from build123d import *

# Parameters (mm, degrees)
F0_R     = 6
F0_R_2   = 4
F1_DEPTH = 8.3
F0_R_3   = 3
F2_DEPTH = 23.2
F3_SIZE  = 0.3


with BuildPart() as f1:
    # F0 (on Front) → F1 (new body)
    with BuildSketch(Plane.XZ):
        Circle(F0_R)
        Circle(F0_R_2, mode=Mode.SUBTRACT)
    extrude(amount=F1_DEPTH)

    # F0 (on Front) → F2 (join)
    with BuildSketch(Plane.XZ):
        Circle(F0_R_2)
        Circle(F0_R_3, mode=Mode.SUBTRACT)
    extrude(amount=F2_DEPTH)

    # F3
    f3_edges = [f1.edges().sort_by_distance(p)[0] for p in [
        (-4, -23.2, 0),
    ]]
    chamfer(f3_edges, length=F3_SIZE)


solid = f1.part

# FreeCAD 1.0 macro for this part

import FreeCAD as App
import Part
import Sketcher
from FreeCAD import Vector


def edges_at(feature, points):
    """Names of the edges that pass closest to the given points."""
    edges = feature.Shape.Edges
    near = lambda p: min(range(len(edges)), key=lambda i: edges[i].distToShape(Part.Vertex(*p))[0])
    return sorted({f"Edge{near(p) + 1}" for p in points})

doc = App.newDocument("Part")
body = doc.addObject("PartDesign::Body", "Body")

sketch1 = doc.addObject("Sketcher::SketchObject", "Sketch")
body.addObject(sketch1)
sketch1.AttachmentSupport = (doc.XZ_Plane, [""])
sketch1.MapMode = "FlatFace"
sketch1.addGeometry([
    Part.Circle(Vector(0, 0, 0), Vector(0, 0, 1), 6),
    Part.Circle(Vector(0, 0, 0), Vector(0, 0, 1), 4),
], False)
sketch1.addConstraint([
    Sketcher.Constraint("Coincident", 0, 3, -1, 1),
    Sketcher.Constraint("Coincident", 1, 3, -1, 1),
    Sketcher.Constraint("Diameter", 0, 12.0),
    Sketcher.Constraint("Diameter", 1, 8.0),
])
pad1 = doc.addObject("PartDesign::Pad", "Pad")
body.addObject(pad1)
pad1.Profile = sketch1
pad1.Length = 8.3

sketch2 = doc.addObject("Sketcher::SketchObject", "Sketch001")
body.addObject(sketch2)
sketch2.AttachmentSupport = (doc.XZ_Plane, [""])
sketch2.MapMode = "FlatFace"
sketch2.addGeometry([
    Part.Circle(Vector(0, 0, 0), Vector(0, 0, 1), 4),
    Part.Circle(Vector(0, 0, 0), Vector(0, 0, 1), 3),
], False)
sketch2.addConstraint([
    Sketcher.Constraint("Coincident", 0, 3, -1, 1),
    Sketcher.Constraint("Coincident", 1, 3, -1, 1),
    Sketcher.Constraint("Diameter", 0, 8.0),
    Sketcher.Constraint("Diameter", 1, 6.0),
])
pad2 = doc.addObject("PartDesign::Pad", "Pad001")
body.addObject(pad2)
pad2.Profile = sketch2
pad2.Length = 23.2
doc.recompute()

chamfer = doc.addObject("PartDesign::Chamfer", "Chamfer")
body.addObject(chamfer)
chamfer.Base = (pad2, edges_at(pad2, [(-4, -23.2, 0)]))
chamfer.Size = 0.3

doc.recompute()
